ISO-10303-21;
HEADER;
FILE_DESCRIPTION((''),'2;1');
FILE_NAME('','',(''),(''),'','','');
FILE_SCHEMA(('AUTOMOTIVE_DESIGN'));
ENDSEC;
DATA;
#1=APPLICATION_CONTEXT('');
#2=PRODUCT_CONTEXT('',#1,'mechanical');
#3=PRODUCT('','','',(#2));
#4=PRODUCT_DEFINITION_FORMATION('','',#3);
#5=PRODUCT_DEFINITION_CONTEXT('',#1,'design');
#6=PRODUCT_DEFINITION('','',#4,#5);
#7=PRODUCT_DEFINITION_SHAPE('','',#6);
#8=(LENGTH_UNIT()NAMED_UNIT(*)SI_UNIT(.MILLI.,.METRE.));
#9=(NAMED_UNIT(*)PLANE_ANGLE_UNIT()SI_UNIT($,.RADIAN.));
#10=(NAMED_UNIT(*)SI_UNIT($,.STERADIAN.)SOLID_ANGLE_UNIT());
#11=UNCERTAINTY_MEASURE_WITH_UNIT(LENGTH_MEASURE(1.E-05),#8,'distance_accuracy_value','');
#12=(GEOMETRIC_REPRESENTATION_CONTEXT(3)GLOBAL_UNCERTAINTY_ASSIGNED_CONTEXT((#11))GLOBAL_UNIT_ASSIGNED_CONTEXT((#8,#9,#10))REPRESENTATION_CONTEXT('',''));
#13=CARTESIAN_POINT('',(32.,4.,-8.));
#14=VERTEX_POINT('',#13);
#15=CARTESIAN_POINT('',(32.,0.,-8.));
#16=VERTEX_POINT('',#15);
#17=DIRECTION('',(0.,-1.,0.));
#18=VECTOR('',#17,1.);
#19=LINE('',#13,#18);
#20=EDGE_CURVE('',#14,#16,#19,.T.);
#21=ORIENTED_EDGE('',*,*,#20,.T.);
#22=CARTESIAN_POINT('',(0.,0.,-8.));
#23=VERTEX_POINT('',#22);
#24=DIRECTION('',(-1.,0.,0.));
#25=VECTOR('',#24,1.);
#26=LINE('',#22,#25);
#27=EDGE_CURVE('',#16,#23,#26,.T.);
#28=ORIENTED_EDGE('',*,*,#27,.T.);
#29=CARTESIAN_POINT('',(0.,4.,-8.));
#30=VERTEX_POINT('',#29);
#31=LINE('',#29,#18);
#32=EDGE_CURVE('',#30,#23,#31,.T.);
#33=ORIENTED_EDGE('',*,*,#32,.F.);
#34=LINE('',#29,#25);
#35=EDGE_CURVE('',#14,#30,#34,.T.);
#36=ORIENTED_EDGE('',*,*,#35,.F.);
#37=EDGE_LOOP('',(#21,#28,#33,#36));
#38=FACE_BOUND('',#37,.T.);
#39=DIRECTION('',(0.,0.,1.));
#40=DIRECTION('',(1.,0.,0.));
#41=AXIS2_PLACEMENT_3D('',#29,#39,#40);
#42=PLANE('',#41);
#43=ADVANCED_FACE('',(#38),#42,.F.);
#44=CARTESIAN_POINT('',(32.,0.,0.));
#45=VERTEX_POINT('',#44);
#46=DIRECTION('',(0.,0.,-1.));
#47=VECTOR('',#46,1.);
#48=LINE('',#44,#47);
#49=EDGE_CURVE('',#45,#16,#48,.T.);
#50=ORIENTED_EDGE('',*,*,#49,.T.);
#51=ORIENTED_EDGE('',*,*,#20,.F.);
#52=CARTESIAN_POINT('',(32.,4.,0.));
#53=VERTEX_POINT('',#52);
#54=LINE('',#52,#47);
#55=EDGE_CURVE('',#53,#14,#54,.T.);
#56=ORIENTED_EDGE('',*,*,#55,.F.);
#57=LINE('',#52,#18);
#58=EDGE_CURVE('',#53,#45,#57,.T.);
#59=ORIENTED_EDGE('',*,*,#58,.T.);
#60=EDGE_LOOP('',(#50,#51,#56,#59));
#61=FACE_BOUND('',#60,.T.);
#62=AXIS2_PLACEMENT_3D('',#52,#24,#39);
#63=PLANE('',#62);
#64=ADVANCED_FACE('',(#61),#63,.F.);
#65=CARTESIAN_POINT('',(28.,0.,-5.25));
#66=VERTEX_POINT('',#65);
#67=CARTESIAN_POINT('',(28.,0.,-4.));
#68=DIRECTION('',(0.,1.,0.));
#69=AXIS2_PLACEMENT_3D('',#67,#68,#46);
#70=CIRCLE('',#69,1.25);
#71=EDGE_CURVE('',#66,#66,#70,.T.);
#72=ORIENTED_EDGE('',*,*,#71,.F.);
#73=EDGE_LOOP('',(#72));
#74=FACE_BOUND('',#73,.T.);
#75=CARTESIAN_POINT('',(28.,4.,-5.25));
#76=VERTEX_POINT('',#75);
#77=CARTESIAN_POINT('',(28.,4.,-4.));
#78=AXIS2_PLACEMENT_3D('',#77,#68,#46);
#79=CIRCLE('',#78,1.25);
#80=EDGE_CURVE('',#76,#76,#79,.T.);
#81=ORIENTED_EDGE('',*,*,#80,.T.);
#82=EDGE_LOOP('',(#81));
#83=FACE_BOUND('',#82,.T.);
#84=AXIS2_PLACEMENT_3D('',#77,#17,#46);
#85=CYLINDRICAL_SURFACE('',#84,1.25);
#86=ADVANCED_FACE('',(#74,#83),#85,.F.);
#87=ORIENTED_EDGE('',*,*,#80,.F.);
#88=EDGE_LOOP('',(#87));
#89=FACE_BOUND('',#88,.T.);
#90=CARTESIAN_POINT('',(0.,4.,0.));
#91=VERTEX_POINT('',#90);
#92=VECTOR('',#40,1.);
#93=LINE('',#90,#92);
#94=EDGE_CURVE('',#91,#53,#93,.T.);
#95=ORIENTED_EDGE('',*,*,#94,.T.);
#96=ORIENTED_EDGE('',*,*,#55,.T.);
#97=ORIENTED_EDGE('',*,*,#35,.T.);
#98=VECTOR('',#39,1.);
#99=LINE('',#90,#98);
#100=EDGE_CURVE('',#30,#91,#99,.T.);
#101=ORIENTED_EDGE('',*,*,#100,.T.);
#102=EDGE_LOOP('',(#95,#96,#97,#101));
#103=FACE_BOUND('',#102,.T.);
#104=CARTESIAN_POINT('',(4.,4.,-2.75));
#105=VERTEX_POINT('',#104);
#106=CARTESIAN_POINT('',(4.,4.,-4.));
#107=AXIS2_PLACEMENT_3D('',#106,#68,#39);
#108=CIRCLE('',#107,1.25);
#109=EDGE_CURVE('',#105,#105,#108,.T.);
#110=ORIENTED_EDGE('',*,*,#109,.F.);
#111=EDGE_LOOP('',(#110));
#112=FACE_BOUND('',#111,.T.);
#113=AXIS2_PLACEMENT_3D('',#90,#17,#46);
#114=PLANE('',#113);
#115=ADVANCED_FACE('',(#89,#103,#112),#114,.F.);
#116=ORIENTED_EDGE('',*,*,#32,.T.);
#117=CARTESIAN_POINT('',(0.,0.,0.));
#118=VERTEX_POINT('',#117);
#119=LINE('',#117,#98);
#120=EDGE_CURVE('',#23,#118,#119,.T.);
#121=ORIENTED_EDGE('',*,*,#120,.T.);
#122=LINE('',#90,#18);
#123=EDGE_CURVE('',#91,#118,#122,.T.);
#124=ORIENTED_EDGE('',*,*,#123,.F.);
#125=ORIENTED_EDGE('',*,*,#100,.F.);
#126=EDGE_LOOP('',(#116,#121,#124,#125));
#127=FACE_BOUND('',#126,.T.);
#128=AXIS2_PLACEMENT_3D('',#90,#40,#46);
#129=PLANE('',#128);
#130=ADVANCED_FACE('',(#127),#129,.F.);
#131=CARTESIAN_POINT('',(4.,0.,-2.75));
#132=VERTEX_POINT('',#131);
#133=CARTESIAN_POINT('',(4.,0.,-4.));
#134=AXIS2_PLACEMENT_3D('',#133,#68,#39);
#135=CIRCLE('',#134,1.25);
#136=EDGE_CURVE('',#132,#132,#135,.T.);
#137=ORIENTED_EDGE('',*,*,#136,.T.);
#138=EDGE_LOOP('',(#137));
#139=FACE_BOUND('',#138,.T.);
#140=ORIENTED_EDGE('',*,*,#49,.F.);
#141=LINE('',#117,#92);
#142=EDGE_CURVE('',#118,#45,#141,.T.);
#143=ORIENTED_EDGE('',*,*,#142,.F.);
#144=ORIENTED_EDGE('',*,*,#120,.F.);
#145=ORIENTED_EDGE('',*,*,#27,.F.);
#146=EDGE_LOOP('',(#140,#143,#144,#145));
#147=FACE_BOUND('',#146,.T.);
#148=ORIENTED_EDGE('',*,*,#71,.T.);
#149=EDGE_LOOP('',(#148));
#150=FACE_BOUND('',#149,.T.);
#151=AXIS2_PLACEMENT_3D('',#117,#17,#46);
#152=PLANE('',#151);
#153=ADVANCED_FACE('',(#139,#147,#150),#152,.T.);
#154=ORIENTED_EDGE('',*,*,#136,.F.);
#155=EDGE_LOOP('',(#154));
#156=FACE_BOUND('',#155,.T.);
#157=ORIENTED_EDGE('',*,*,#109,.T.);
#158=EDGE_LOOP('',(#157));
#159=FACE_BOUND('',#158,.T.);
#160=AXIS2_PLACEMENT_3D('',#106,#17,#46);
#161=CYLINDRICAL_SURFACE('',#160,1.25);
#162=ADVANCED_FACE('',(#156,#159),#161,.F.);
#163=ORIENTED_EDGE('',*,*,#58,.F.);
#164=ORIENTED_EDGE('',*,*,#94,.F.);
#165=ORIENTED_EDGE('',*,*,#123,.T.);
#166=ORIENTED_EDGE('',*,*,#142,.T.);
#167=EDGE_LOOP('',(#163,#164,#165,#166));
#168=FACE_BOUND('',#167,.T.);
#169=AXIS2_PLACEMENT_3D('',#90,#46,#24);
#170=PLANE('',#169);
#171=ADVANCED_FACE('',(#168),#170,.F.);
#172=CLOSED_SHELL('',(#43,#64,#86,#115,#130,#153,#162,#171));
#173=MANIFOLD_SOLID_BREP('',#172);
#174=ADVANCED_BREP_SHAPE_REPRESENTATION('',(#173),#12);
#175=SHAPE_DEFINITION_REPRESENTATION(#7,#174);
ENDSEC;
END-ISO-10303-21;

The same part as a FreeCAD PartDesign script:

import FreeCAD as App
import Part
import Sketcher
Q = App.Units.Quantity

doc = App.newDocument("Part")
body = doc.addObject("PartDesign::Body", "Body")

# Sketch on XZ plane
sketch1 = body.newObject("Sketcher::SketchObject", "Sketch")
sketch1.AttachmentSupport = (doc.getObject("XZ_Plane"), [""])
sketch1.MapMode = "FlatFace"
sketch1.addGeometry([
    Part.LineSegment(App.Vector(0, -8, 0), App.Vector(0, 0, 0)),  # 0
    Part.LineSegment(App.Vector(0, 0, 0), App.Vector(32, 0, 0)),  # 1
    Part.LineSegment(App.Vector(32, 0, 0), App.Vector(32, -8, 0)),  # 2
    Part.LineSegment(App.Vector(32, -8, 0), App.Vector(0, -8, 0)),  # 3
    Part.Circle(App.Vector(4, -4, 0), App.Vector(0, 0, 1), 1.25),  # 4
    Part.Circle(App.Vector(28, -4, 0), App.Vector(0, 0, 1), 1.25),  # 5
], False)
sketch1.addConstraint([
    Sketcher.Constraint("Coincident", 0, 2, 1, 1),
    Sketcher.Constraint("Coincident", 1, 2, 2, 1),
    Sketcher.Constraint("Coincident", 2, 2, 3, 1),
    Sketcher.Constraint("Coincident", 3, 2, 0, 1),
    Sketcher.Constraint("Vertical", 0),
    Sketcher.Constraint("Horizontal", 1),
    Sketcher.Constraint("Vertical", 2),
    Sketcher.Constraint("Horizontal", 3),
    Sketcher.Constraint("Coincident", 0, 2, -1, 1),
    Sketcher.Constraint("Equal", 4, 5),
    Sketcher.Constraint("Horizontal", 4, 3, 5, 3),
    Sketcher.Constraint("Diameter", 4, Q("2.5 mm")),
    Sketcher.Constraint("DistanceX", 1, 1, 1, 2, Q("32 mm")),
    Sketcher.Constraint("DistanceY", 0, 1, 0, 2, Q("8 mm")),
    Sketcher.Constraint("DistanceX", -1, 1, 4, 3, Q("4 mm")),
    Sketcher.Constraint("DistanceY", 4, 3, -1, 1, Q("4 mm")),
    Sketcher.Constraint("DistanceX", -1, 1, 5, 3, Q("28 mm")),
])
pad1 = body.newObject("PartDesign::Pad", "Pad")
pad1.Profile = sketch1
pad1.Length = 4
pad1.Reversed = True

doc.recompute()
